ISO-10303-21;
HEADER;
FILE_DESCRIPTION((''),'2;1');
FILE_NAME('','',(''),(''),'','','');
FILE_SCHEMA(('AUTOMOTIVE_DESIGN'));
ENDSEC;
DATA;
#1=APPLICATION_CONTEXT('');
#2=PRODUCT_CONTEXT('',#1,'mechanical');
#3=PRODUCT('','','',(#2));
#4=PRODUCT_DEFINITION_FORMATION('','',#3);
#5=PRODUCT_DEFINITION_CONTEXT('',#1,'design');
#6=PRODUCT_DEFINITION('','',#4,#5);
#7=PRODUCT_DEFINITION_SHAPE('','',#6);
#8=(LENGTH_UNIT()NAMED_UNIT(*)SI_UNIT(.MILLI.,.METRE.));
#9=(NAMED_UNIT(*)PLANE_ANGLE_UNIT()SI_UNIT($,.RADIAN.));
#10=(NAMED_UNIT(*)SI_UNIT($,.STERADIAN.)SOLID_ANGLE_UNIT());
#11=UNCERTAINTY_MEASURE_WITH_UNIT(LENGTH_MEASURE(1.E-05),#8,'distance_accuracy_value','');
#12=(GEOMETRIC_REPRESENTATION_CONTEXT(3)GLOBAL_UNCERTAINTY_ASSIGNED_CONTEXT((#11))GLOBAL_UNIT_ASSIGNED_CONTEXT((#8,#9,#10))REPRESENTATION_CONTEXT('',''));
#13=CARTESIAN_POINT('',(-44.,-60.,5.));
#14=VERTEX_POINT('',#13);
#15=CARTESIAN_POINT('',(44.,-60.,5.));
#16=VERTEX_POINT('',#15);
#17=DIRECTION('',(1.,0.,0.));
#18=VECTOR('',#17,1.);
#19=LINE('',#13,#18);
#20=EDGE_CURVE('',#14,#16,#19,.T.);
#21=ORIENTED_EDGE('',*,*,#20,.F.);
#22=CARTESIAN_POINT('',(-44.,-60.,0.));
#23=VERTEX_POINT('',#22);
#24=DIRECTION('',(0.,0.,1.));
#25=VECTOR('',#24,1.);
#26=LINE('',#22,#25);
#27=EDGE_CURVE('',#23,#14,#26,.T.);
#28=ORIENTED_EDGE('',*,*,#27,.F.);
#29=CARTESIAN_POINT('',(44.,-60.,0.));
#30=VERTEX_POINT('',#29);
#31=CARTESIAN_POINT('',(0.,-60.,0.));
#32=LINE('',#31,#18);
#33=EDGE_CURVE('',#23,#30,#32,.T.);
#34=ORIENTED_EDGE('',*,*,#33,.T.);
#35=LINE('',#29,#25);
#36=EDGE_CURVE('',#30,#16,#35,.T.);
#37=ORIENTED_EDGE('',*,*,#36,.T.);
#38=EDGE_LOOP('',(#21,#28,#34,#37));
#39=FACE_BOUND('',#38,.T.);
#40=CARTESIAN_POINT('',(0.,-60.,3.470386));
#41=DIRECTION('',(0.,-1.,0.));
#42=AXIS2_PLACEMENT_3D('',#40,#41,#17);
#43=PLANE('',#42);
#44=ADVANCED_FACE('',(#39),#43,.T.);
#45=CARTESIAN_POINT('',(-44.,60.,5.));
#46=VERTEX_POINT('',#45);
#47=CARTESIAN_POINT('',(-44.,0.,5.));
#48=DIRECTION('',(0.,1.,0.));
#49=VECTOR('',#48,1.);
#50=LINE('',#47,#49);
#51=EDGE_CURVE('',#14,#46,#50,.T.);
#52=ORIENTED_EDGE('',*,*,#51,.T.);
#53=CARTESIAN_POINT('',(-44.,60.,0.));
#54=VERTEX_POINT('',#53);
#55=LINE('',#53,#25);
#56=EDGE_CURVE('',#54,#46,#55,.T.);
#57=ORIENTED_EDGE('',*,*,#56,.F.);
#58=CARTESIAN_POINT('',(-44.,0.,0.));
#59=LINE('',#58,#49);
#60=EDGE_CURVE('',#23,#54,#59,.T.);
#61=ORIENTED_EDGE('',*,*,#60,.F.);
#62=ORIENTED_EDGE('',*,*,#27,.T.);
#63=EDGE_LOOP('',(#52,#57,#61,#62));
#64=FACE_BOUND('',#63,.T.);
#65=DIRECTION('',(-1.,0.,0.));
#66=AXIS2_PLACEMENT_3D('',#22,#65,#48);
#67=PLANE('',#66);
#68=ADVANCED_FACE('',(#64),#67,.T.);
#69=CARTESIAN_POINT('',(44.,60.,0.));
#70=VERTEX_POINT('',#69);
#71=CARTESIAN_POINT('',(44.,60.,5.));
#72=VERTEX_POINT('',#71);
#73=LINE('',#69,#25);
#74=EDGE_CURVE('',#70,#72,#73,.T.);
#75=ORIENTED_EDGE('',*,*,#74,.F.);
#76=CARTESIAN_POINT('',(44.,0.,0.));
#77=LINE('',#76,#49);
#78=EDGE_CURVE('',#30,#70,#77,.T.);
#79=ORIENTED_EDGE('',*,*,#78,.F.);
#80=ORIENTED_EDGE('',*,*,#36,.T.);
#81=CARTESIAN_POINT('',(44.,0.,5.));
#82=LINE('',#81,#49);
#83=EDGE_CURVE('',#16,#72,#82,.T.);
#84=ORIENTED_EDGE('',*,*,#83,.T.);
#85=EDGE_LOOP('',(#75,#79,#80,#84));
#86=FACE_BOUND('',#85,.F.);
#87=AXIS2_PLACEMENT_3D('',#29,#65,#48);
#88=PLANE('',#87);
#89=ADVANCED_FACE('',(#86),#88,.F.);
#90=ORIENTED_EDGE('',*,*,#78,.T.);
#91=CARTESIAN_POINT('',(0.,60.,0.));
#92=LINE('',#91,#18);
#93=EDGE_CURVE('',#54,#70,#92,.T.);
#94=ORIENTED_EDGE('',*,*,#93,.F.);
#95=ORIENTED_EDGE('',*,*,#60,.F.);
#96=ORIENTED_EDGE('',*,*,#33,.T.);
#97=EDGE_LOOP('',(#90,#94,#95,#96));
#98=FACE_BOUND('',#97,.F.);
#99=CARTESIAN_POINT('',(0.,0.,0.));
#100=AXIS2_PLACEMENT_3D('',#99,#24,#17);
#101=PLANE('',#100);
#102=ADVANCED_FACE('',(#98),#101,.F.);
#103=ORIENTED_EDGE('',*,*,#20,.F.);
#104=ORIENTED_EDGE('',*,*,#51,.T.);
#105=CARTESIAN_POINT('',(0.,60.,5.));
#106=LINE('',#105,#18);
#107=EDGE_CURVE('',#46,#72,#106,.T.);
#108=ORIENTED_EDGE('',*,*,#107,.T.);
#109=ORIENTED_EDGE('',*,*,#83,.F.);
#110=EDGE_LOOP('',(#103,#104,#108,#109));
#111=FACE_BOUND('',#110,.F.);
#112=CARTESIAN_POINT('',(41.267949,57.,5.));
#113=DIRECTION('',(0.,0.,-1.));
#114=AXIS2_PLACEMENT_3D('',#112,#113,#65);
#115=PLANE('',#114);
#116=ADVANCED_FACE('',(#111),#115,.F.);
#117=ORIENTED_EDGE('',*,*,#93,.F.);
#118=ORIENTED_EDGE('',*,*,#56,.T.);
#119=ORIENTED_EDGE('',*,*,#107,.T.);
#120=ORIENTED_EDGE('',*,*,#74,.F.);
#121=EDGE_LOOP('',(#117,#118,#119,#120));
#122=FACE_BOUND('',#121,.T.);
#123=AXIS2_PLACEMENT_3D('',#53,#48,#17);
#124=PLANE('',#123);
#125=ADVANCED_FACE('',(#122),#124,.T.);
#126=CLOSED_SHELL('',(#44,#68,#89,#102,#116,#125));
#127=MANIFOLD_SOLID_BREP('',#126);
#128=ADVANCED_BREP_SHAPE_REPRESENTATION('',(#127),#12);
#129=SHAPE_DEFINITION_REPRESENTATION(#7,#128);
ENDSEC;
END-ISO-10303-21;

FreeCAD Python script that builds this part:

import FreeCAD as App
import Part
import Sketcher
from FreeCAD import Vector
Q = App.Units.Quantity


def add_polygon(sketch, points):
    """Adds a closed chain of lines whose ends are joined by coincident constraints."""
    first, n = sketch.GeometryCount, len(points)
    for a, b in zip(points, points[1:] + points[:1]):
        sketch.addGeometry(Part.LineSegment(App.Vector(*a, 0), App.Vector(*b, 0)), False)
    for i in range(n):
        sketch.addConstraint(Sketcher.Constraint("Coincident", first + i, 2, first + (i + 1) % n, 1))

doc = App.newDocument("Part")
body = doc.addObject("PartDesign::Body", "Body")

sketch1 = body.newObject("Sketcher::SketchObject", "Sketch")
sketch1.AttachmentSupport = (doc.getObject("XY_Plane"), [""])
sketch1.MapMode = "FlatFace"
add_polygon(sketch1, [(-44, 60), (-44, -60), (44, -60), (44, 60)])
sketch1.addConstraint(Sketcher.Constraint("Vertical", 0))
sketch1.addConstraint(Sketcher.Constraint("Horizontal", 1))
sketch1.addConstraint(Sketcher.Constraint("Vertical", 2))
sketch1.addConstraint(Sketcher.Constraint("Horizontal", 3))
sketch1.addConstraint(Sketcher.Constraint("Symmetric", 0, 2, 2, 2, -1, 1))
sketch1.addConstraint(Sketcher.Constraint("DistanceX", 1, 1, 1, 2, 88.0))
sketch1.addConstraint(Sketcher.Constraint("DistanceY", 0, 2, 0, 1, 120.0))
pad1 = body.newObject("PartDesign::Pad", "Pad")
pad1.Profile = sketch1
pad1.Length = 5

sketch2 = body.newObject("Sketcher::SketchObject", "Sketch001")
sketch2.AttachmentSupport = (doc.getObject("XZ_Plane"), [""])
sketch2.MapMode = "FlatFace"
sketch2.AttachmentOffset = App.Placement(Vector(0, 0, 60), App.Rotation())
add_polygon(sketch2, [(41.3, 5), (-41.3, 5), (-43, 2), (43, 2)])
sketch2.addConstraint(Sketcher.Constraint("Horizontal", 0))
sketch2.addConstraint(Sketcher.Constraint("Horizontal", 2))
sketch2.addConstraint(Sketcher.Constraint("Equal", 1, 3))
sketch2.addConstraint(Sketcher.Constraint("DistanceX", 2, 1, 2, 2, 86.0))
sketch2.addConstraint(Sketcher.Constraint("Angle", 1, Q("-120.000003 deg")))
sketch2.addConstraint(Sketcher.Constraint("DistanceY", -1, 1, 0, 2, 5.0))
sketch2.addConstraint(Sketcher.Constraint("DistanceX", 1, 2, -1, 1, 43.0))
sketch2.addConstraint(Sketcher.Constraint("DistanceY", -1, 1, 1, 2, 2.0))
pocket1 = body.newObject("PartDesign::Pocket", "Pocket")
pocket1.Profile = sketch2
pocket1.Length = 117

sketch3 = body.newObject("Sketcher::SketchObject", "Sketch002")
sketch3.AttachmentSupport = (doc.getObject("XZ_Plane"), [""])
sketch3.MapMode = "FlatFace"
sketch3.AttachmentOffset = App.Placement(Vector(0, 0, -57), App.Rotation())
add_polygon(sketch3, [(41.3, 5), (-41.3, 5), (-43, 2), (43, 2)])
sketch3.addConstraint(Sketcher.Constraint("Horizontal", 0))
sketch3.addConstraint(Sketcher.Constraint("Horizontal", 2))
sketch3.addConstraint(Sketcher.Constraint("Equal", 1, 3))
sketch3.addConstraint(Sketcher.Constraint("DistanceX", 2, 1, 2, 2, 86.0))
sketch3.addConstraint(Sketcher.Constraint("Angle", 1, Q("-120.000003 deg")))
sketch3.addConstraint(Sketcher.Constraint("DistanceY", -1, 1, 0, 2, 5.0))
sketch3.addConstraint(Sketcher.Constraint("DistanceX", 1, 2, -1, 1, 43.0))
sketch3.addConstraint(Sketcher.Constraint("DistanceY", -1, 1, 1, 2, 2.0))
pad2 = body.newObject("PartDesign::Pad", "Pad001")
pad2.Profile = sketch3
pad2.Length = 117

doc.recompute()
